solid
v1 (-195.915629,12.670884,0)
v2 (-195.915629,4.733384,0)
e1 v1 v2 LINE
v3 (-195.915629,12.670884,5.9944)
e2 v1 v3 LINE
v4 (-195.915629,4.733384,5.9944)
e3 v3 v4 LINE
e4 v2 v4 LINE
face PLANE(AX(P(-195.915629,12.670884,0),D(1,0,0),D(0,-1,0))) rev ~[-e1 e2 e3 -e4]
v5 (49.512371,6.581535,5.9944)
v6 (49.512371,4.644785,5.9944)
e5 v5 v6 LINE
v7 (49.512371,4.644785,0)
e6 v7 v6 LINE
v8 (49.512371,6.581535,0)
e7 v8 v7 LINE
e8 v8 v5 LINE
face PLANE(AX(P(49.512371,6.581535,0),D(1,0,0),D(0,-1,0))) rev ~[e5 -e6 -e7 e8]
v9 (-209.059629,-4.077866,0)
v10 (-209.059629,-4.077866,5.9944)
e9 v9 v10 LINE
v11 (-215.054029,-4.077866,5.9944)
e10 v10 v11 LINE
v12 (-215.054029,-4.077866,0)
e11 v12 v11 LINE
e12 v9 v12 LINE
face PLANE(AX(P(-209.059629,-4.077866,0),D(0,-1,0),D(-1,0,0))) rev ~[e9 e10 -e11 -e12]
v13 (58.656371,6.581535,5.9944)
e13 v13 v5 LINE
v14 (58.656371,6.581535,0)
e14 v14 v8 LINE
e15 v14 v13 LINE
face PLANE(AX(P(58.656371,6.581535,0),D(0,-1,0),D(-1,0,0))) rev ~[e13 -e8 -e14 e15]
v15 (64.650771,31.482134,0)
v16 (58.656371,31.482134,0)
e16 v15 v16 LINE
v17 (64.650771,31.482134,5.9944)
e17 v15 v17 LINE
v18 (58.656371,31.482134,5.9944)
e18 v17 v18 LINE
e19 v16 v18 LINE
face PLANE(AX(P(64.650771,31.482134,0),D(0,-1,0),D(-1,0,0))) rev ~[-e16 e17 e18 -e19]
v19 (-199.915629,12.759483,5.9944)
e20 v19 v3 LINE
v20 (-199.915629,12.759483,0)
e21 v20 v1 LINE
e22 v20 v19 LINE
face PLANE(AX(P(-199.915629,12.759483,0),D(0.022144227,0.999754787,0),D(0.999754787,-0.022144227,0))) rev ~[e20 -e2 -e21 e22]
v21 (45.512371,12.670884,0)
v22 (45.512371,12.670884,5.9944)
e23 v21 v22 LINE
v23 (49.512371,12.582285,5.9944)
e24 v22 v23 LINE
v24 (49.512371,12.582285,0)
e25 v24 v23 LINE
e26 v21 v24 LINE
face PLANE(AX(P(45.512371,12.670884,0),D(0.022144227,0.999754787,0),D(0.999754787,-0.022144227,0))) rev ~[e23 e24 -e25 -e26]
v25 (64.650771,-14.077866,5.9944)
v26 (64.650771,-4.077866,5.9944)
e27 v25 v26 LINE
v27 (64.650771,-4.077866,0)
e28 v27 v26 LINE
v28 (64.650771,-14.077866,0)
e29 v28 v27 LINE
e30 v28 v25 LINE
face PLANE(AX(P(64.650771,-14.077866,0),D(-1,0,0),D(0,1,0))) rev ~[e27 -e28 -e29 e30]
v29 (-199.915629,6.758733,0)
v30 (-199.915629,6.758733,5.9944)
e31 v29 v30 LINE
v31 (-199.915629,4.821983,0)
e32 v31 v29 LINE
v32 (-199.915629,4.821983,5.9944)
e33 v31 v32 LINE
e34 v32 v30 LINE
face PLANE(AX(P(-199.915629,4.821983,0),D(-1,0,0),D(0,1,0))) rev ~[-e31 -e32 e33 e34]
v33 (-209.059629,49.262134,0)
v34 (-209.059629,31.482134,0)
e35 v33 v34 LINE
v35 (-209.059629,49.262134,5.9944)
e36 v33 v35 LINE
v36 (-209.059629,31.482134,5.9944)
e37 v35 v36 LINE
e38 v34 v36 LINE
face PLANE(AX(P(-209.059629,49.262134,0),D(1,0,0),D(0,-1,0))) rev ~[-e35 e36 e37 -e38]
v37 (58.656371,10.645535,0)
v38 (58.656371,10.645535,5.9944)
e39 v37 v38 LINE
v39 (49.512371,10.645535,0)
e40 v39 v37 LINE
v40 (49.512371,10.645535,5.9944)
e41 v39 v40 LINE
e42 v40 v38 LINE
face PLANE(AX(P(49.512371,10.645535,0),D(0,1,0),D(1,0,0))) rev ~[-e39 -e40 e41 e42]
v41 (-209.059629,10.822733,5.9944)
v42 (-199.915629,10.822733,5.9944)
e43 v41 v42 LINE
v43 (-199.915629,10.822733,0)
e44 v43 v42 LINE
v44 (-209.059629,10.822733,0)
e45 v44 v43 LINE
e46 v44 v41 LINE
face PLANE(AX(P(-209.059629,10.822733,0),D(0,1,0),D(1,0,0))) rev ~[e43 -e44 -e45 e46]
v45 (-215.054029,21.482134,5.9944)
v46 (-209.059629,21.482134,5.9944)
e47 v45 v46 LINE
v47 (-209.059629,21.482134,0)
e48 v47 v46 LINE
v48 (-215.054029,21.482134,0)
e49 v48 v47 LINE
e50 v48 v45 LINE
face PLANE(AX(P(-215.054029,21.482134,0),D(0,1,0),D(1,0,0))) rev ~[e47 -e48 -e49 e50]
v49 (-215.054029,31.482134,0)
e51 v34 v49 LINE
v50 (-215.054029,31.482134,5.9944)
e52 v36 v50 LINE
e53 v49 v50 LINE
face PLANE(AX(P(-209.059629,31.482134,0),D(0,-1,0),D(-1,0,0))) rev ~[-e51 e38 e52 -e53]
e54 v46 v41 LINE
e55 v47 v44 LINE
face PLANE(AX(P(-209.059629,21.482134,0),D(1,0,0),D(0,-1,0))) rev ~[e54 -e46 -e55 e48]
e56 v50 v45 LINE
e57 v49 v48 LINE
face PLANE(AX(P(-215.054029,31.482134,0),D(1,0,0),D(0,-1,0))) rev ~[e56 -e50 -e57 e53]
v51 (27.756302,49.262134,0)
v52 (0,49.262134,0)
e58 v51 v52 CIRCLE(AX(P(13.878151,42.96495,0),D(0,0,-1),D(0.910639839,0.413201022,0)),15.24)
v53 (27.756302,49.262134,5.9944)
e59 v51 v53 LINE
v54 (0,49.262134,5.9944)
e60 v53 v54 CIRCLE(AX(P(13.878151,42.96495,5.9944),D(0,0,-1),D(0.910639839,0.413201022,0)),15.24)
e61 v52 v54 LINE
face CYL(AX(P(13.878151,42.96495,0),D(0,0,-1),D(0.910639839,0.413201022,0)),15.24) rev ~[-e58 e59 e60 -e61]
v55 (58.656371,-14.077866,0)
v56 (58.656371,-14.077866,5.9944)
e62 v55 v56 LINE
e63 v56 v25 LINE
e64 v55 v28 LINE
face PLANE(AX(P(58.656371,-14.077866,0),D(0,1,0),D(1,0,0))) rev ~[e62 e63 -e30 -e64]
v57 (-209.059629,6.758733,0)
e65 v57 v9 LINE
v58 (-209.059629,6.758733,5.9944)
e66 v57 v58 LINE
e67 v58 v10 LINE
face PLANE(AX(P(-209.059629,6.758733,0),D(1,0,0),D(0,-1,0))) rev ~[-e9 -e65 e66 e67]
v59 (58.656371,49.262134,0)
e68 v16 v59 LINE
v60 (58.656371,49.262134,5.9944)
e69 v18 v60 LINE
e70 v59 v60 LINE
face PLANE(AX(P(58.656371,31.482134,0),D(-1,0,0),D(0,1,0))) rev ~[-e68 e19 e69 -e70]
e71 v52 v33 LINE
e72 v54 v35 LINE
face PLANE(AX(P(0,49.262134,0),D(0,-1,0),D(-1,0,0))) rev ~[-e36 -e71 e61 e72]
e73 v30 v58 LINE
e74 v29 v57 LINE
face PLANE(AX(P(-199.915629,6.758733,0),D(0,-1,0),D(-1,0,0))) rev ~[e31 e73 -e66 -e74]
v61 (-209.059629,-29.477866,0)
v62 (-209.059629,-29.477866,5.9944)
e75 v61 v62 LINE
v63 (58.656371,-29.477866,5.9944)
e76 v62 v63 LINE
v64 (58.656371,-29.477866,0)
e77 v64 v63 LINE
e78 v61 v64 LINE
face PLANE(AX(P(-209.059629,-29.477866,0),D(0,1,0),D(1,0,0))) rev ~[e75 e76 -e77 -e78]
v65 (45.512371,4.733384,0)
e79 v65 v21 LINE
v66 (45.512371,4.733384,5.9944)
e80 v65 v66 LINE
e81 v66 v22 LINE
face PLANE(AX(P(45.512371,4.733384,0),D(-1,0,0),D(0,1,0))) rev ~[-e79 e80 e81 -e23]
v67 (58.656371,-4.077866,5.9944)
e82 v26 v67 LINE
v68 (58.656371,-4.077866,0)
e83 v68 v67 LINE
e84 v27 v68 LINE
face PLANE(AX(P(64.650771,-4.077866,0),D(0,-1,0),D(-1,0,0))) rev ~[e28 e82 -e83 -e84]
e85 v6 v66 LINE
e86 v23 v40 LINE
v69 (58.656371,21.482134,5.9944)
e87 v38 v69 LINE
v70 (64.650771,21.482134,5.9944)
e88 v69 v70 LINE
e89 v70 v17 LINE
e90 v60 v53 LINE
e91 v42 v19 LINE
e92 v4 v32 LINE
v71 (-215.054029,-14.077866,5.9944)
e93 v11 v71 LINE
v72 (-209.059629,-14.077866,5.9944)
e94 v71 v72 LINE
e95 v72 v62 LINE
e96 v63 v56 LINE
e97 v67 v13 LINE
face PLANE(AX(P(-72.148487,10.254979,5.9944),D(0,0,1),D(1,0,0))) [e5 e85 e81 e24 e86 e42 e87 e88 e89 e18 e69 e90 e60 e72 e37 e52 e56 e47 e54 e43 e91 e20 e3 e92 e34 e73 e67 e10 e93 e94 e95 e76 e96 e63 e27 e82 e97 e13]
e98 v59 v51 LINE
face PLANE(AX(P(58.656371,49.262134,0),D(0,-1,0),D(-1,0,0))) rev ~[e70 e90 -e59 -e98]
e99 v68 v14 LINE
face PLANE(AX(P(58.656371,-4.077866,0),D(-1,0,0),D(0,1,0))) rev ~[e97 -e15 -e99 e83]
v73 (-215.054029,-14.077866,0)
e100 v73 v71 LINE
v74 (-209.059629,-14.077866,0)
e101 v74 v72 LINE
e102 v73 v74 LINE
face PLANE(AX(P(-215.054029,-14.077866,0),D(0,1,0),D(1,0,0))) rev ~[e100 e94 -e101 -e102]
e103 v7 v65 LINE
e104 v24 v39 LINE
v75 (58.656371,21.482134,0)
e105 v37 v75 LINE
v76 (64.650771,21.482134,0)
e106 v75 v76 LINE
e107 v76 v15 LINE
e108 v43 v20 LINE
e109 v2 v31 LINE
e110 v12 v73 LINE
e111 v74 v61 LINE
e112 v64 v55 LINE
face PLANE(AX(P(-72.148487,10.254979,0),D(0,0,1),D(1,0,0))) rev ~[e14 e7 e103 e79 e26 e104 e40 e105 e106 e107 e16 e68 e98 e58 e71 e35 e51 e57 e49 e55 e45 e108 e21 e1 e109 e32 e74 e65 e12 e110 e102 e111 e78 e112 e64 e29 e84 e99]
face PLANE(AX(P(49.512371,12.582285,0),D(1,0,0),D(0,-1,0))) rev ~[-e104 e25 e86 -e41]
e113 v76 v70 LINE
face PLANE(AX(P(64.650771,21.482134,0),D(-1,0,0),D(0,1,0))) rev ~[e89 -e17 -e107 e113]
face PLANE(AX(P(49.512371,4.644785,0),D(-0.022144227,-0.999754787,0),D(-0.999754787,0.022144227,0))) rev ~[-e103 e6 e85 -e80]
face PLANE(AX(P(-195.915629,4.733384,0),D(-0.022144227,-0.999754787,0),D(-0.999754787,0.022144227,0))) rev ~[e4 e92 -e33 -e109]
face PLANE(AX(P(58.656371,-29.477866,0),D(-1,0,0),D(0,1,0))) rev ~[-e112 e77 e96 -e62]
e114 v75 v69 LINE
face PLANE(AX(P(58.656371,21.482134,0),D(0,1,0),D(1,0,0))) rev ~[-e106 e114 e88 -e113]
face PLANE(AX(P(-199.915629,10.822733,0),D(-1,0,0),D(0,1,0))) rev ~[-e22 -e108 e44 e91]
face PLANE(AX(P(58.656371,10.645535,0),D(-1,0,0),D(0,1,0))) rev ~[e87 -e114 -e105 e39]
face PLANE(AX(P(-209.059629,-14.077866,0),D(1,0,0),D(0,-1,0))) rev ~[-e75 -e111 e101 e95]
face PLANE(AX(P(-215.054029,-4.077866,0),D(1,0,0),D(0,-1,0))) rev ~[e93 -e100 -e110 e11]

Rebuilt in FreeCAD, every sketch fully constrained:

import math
import FreeCAD as App
import Part
import Sketcher
Q = App.Units.Quantity

doc = App.newDocument("Part")
body = doc.addObject("PartDesign::Body", "Body")

# Sketch on XY plane
sketch1 = doc.addObject("Sketcher::SketchObject", "Sketch")
body.addObject(sketch1)
sketch1.AttachmentSupport = (doc.XY_Plane, [""])
sketch1.MapMode = "FlatFace"
sketch1.addGeometry(Part.LineSegment(App.Vector(-209.059629, -14.077866, 0), App.Vector(-209.059629, -29.477866, 0)), False)
sketch1.addGeometry(Part.LineSegment(App.Vector(-209.059629, -29.477866, 0), App.Vector(58.656371, -29.477866, 0)), False)
sketch1.addGeometry(Part.LineSegment(App.Vector(58.656371, -29.477866, 0), App.Vector(58.656371, -14.077866, 0)), False)
sketch1.addGeometry(Part.LineSegment(App.Vector(58.656371, -14.077866, 0), App.Vector(64.650771, -14.077866, 0)), False)
sketch1.addGeometry(Part.LineSegment(App.Vector(64.650771, -14.077866, 0), App.Vector(64.650771, -4.077866, 0)), False)
sketch1.addGeometry(Part.LineSegment(App.Vector(64.650771, -4.077866, 0), App.Vector(58.656371, -4.077866, 0)), False)
sketch1.addGeometry(Part.LineSegment(App.Vector(58.656371, -4.077866, 0), App.Vector(58.656371, 6.581535, 0)), False)
sketch1.addGeometry(Part.LineSegment(App.Vector(58.656371, 6.581535, 0), App.Vector(49.512371, 6.581535, 0)), False)
sketch1.addGeometry(Part.LineSegment(App.Vector(49.512371, 6.581535, 0), App.Vector(49.512371, 4.644785, 0)), False)
sketch1.addGeometry(Part.LineSegment(App.Vector(49.512371, 4.644785, 0), App.Vector(45.512371, 4.733384, 0)), False)
sketch1.addGeometry(Part.LineSegment(App.Vector(45.512371, 4.733384, 0), App.Vector(45.512371, 12.670884, 0)), False)
sketch1.addGeometry(Part.LineSegment(App.Vector(45.512371, 12.670884, 0), App.Vector(49.512371, 12.582285, 0)), False)
sketch1.addGeometry(Part.LineSegment(App.Vector(49.512371, 12.582285, 0), App.Vector(49.512371, 10.645535, 0)), False)
sketch1.addGeometry(Part.LineSegment(App.Vector(49.512371, 10.645535, 0), App.Vector(58.656371, 10.645535, 0)), False)
sketch1.addGeometry(Part.LineSegment(App.Vector(58.656371, 10.645535, 0), App.Vector(58.656371, 21.482134, 0)), False)
sketch1.addGeometry(Part.LineSegment(App.Vector(58.656371, 21.482134, 0), App.Vector(64.650771, 21.482134, 0)), False)
sketch1.addGeometry(Part.LineSegment(App.Vector(64.650771, 21.482134, 0), App.Vector(64.650771, 31.482134, 0)), False)
sketch1.addGeometry(Part.LineSegment(App.Vector(64.650771, 31.482134, 0), App.Vector(58.656371, 31.482134, 0)), False)
sketch1.addGeometry(Part.LineSegment(App.Vector(58.656371, 31.482134, 0), App.Vector(58.656371, 49.262134, 0)), False)
sketch1.addGeometry(Part.LineSegment(App.Vector(58.656371, 49.262134, 0), App.Vector(27.756302, 49.262134, 0)), False)
sketch1.addGeometry(Part.ArcOfCircle(Part.Circle(App.Vector(13.878151, 42.96495, 0), App.Vector(0, 0, 1), 15.24), math.radians(155.593923), math.radians(384.406077)), False)
sketch1.addGeometry(Part.LineSegment(App.Vector(0, 49.262134, 0), App.Vector(-209.059629, 49.262134, 0)), False)
sketch1.addGeometry(Part.LineSegment(App.Vector(-209.059629, 49.262134, 0), App.Vector(-209.059629, 31.482134, 0)), False)
sketch1.addGeometry(Part.LineSegment(App.Vector(-209.059629, 31.482134, 0), App.Vector(-215.054029, 31.482134, 0)), False)
sketch1.addGeometry(Part.LineSegment(App.Vector(-215.054029, 31.482134, 0), App.Vector(-215.054029, 21.482134, 0)), False)
sketch1.addGeometry(Part.LineSegment(App.Vector(-215.054029, 21.482134, 0), App.Vector(-209.059629, 21.482134, 0)), False)
sketch1.addGeometry(Part.LineSegment(App.Vector(-209.059629, 21.482134, 0), App.Vector(-209.059629, 10.822733, 0)), False)
sketch1.addGeometry(Part.LineSegment(App.Vector(-209.059629, 10.822733, 0), App.Vector(-199.915629, 10.822733, 0)), False)
sketch1.addGeometry(Part.LineSegment(App.Vector(-199.915629, 10.822733, 0), App.Vector(-199.915629, 12.759483, 0)), False)
sketch1.addGeometry(Part.LineSegment(App.Vector(-199.915629, 12.759483, 0), App.Vector(-195.915629, 12.670884, 0)), False)
sketch1.addGeometry(Part.LineSegment(App.Vector(-195.915629, 12.670884, 0), App.Vector(-195.915629, 4.733384, 0)), False)
sketch1.addGeometry(Part.LineSegment(App.Vector(-195.915629, 4.733384, 0), App.Vector(-199.915629, 4.821983, 0)), False)
sketch1.addGeometry(Part.LineSegment(App.Vector(-199.915629, 4.821983, 0), App.Vector(-199.915629, 6.758733, 0)), False)
sketch1.addGeometry(Part.LineSegment(App.Vector(-199.915629, 6.758733, 0), App.Vector(-209.059629, 6.758733, 0)), False)
sketch1.addGeometry(Part.LineSegment(App.Vector(-209.059629, 6.758733, 0), App.Vector(-209.059629, -4.077866, 0)), False)
sketch1.addGeometry(Part.LineSegment(App.Vector(-209.059629, -4.077866, 0), App.Vector(-215.054029, -4.077866, 0)), False)
sketch1.addGeometry(Part.LineSegment(App.Vector(-215.054029, -4.077866, 0), App.Vector(-215.054029, -14.077866, 0)), False)
sketch1.addGeometry(Part.LineSegment(App.Vector(-215.054029, -14.077866, 0), App.Vector(-209.059629, -14.077866, 0)), False)
sketch1.addConstraint(Sketcher.Constraint("Coincident", 0, 2, 1, 1))
sketch1.addConstraint(Sketcher.Constraint("Coincident", 1, 2, 2, 1))
sketch1.addConstraint(Sketcher.Constraint("Coincident", 2, 2, 3, 1))
sketch1.addConstraint(Sketcher.Constraint("Coincident", 3, 2, 4, 1))
sketch1.addConstraint(Sketcher.Constraint("Coincident", 4, 2, 5, 1))
sketch1.addConstraint(Sketcher.Constraint("Coincident", 5, 2, 6, 1))
sketch1.addConstraint(Sketcher.Constraint("Coincident", 6, 2, 7, 1))
sketch1.addConstraint(Sketcher.Constraint("Coincident", 7, 2, 8, 1))
sketch1.addConstraint(Sketcher.Constraint("Coincident", 8, 2, 9, 1))
sketch1.addConstraint(Sketcher.Constraint("Coincident", 9, 2, 10, 1))
sketch1.addConstraint(Sketcher.Constraint("Coincident", 10, 2, 11, 1))
sketch1.addConstraint(Sketcher.Constraint("Coincident", 11, 2, 12, 1))
sketch1.addConstraint(Sketcher.Constraint("Coincident", 12, 2, 13, 1))
sketch1.addConstraint(Sketcher.Constraint("Coincident", 13, 2, 14, 1))
sketch1.addConstraint(Sketcher.Constraint("Coincident", 14, 2, 15, 1))
sketch1.addConstraint(Sketcher.Constraint("Coincident", 15, 2, 16, 1))
sketch1.addConstraint(Sketcher.Constraint("Coincident", 16, 2, 17, 1))
sketch1.addConstraint(Sketcher.Constraint("Coincident", 17, 2, 18, 1))
sketch1.addConstraint(Sketcher.Constraint("Coincident", 18, 2, 19, 1))
sketch1.addConstraint(Sketcher.Constraint("Coincident", 19, 2, 20, 2))
sketch1.addConstraint(Sketcher.Constraint("Coincident", 20, 1, 21, 1))
sketch1.addConstraint(Sketcher.Constraint("Coincident", 21, 2, 22, 1))
sketch1.addConstraint(Sketcher.Constraint("Coincident", 22, 2, 23, 1))
sketch1.addConstraint(Sketcher.Constraint("Coincident", 23, 2, 24, 1))
sketch1.addConstraint(Sketcher.Constraint("Coincident", 24, 2, 25, 1))
sketch1.addConstraint(Sketcher.Constraint("Coincident", 25, 2, 26, 1))
sketch1.addConstraint(Sketcher.Constraint("Coincident", 26, 2, 27, 1))
sketch1.addConstraint(Sketcher.Constraint("Coincident", 27, 2, 28, 1))
sketch1.addConstraint(Sketcher.Constraint("Coincident", 28, 2, 29, 1))
sketch1.addConstraint(Sketcher.Constraint("Coincident", 29, 2, 30, 1))
sketch1.addConstraint(Sketcher.Constraint("Coincident", 30, 2, 31, 1))
sketch1.addConstraint(Sketcher.Constraint("Coincident", 31, 2, 32, 1))
sketch1.addConstraint(Sketcher.Constraint("Coincident", 32, 2, 33, 1))
sketch1.addConstraint(Sketcher.Constraint("Coincident", 33, 2, 34, 1))
sketch1.addConstraint(Sketcher.Constraint("Coincident", 34, 2, 35, 1))
sketch1.addConstraint(Sketcher.Constraint("Coincident", 35, 2, 36, 1))
sketch1.addConstraint(Sketcher.Constraint("Coincident", 36, 2, 37, 1))
sketch1.addConstraint(Sketcher.Constraint("Coincident", 37, 2, 0, 1))
sketch1.addConstraint(Sketcher.Constraint("Vertical", 0))
sketch1.addConstraint(Sketcher.Constraint("Horizontal", 1))
sketch1.addConstraint(Sketcher.Constraint("Vertical", 2))
sketch1.addConstraint(Sketcher.Constraint("Horizontal", 3))
sketch1.addConstraint(Sketcher.Constraint("Vertical", 4))
sketch1.addConstraint(Sketcher.Constraint("Horizontal", 5))
sketch1.addConstraint(Sketcher.Constraint("Vertical", 6))
sketch1.addConstraint(Sketcher.Constraint("Horizontal", 7))
sketch1.addConstraint(Sketcher.Constraint("Vertical", 8))
sketch1.addConstraint(Sketcher.Constraint("Vertical", 10))
sketch1.addConstraint(Sketcher.Constraint("Vertical", 12))
sketch1.addConstraint(Sketcher.Constraint("Horizontal", 13))
sketch1.addConstraint(Sketcher.Constraint("Vertical", 14))
sketch1.addConstraint(Sketcher.Constraint("Horizontal", 15))
sketch1.addConstraint(Sketcher.Constraint("Vertical", 16))
sketch1.addConstraint(Sketcher.Constraint("Horizontal", 17))
sketch1.addConstraint(Sketcher.Constraint("Vertical", 18))
sketch1.addConstraint(Sketcher.Constraint("Horizontal", 19))
sketch1.addConstraint(Sketcher.Constraint("Horizontal", 21))
sketch1.addConstraint(Sketcher.Constraint("Vertical", 22))
sketch1.addConstraint(Sketcher.Constraint("Horizontal", 23))
sketch1.addConstraint(Sketcher.Constraint("Vertical", 24))
sketch1.addConstraint(Sketcher.Constraint("Horizontal", 25))
sketch1.addConstraint(Sketcher.Constraint("Vertical", 26))
sketch1.addConstraint(Sketcher.Constraint("Horizontal", 27))
sketch1.addConstraint(Sketcher.Constraint("Vertical", 28))
sketch1.addConstraint(Sketcher.Constraint("Vertical", 30))
sketch1.addConstraint(Sketcher.Constraint("Vertical", 32))
sketch1.addConstraint(Sketcher.Constraint("Horizontal", 33))
sketch1.addConstraint(Sketcher.Constraint("Vertical", 34))
sketch1.addConstraint(Sketcher.Constraint("Horizontal", 35))
sketch1.addConstraint(Sketcher.Constraint("Vertical", 36))
sketch1.addConstraint(Sketcher.Constraint("Horizontal", 37))
sketch1.addConstraint(Sketcher.Constraint("PointOnObject", 20, 1, -2))
sketch1.addConstraint(Sketcher.Constraint("Parallel", 9, 11))
sketch1.addConstraint(Sketcher.Constraint("Parallel", 11, 29))
sketch1.addConstraint(Sketcher.Constraint("Parallel", 29, 31))
sketch1.addConstraint(Sketcher.Constraint("Horizontal", 19, 2, 20, 1))
sketch1.addConstraint(Sketcher.Constraint("Horizontal", 17, 2, 22, 2))
sketch1.addConstraint(Sketcher.Constraint("Horizontal", 15, 2, 24, 2))
sketch1.addConstraint(Sketcher.Constraint("Horizontal", 10, 2, 29, 2))
sketch1.addConstraint(Sketcher.Constraint("Horizontal", 9, 2, 30, 2))
sketch1.addConstraint(Sketcher.Constraint("Horizontal", 5, 2, 34, 2))
sketch1.addConstraint(Sketcher.Constraint("Horizontal", 3, 2, 36, 2))
sketch1.addConstraint(Sketcher.Constraint("Vertical", 2, 2, 5, 2))
sketch1.addConstraint(Sketcher.Constraint("Vertical", 8, 2, 11, 2))
sketch1.addConstraint(Sketcher.Constraint("Vertical", 6, 2, 13, 2))
sketch1.addConstraint(Sketcher.Constraint("Vertical", 4, 2, 15, 2))
sketch1.addConstraint(Sketcher.Constraint("Vertical", 14, 2, 17, 2))
sketch1.addConstraint(Sketcher.Constraint("Vertical", 0, 2, 21, 2))
sketch1.addConstraint(Sketcher.Constraint("Vertical", 22, 2, 25, 2))
sketch1.addConstraint(Sketcher.Constraint("Vertical", 28, 2, 31, 2))
sketch1.addConstraint(Sketcher.Constraint("Vertical", 26, 2, 33, 2))
sketch1.addConstraint(Sketcher.Constraint("Vertical", 24, 2, 35, 2))
sketch1.addConstraint(Sketcher.Constraint("Equal", 17, 23))
sketch1.addConstraint(Sketcher.Constraint("Equal", 13, 27))
sketch1.addConstraint(Sketcher.Constraint("Equal", 8, 12))
sketch1.addConstraint(Sketcher.Constraint("Equal", 4, 16))
sketch1.addConstraint(Sketcher.Constraint("Equal", 6, 26))
sketch1.addConstraint(Sketcher.Constraint("Equal", 12, 28))
sketch1.addConstraint(Sketcher.Constraint("Equal", 28, 32))
sketch1.addConstraint(Sketcher.Constraint("Equal", 11, 29))
sketch1.addConstraint(Sketcher.Constraint("Radius", 20, Q("0.6 in")))
sketch1.addConstraint(Sketcher.Constraint("DistanceY", 18, 1, 18, 2, Q("0.7 in")))
sketch1.addConstraint(Sketcher.Constraint("DistanceY", 1, 2, 4, 2, Q("1 in")))
sketch1.addConstraint(Sketcher.Constraint("DistanceX", 1, 1, 1, 2, Q("10.54 in")))
sketch1.addConstraint(Sketcher.Constraint("DistanceX", 7, 2, 7, 1, Q("0.36 in")))
sketch1.addConstraint(Sketcher.Constraint("DistanceY", 0, 2, 21, 2, Q("3.1 in")))
sketch1.addConstraint(Sketcher.Constraint("DistanceX", 3, 1, 3, 2, Q("0.236 in")))
sketch1.addConstraint(Sketcher.Constraint("DistanceY", 10, 1, 10, 2, Q("0.3125 in")))
sketch1.addConstraint(Sketcher.Constraint("DistanceY", 7, 2, 12, 2, Q("0.16 in")))
sketch1.addConstraint(Sketcher.Constraint("DistanceY", 0, 2, 0, 1, Q("15.4 mm")))
sketch1.addConstraint(Sketcher.Constraint("DistanceY", 6, 1, 6, 2, Q("10.659401 mm")))
sketch1.addConstraint(Sketcher.Constraint("DistanceX", 19, 2, 19, 1, Q("30.900068 mm")))
sketch1.addConstraint(Sketcher.Constraint("DistanceX", 21, 2, 21, 1, Q("209.059629 mm")))
sketch1.addConstraint(Sketcher.Constraint("DistanceX", 9, 2, 8, 2, Q("4 mm")))
sketch1.addConstraint(Sketcher.Constraint("DistanceY", -1, 1, 20, 3, Q("42.96495 mm")))
pad1 = doc.addObject("PartDesign::Pad", "Pad")
body.addObject(pad1)
pad1.Profile = sketch1
pad1.Length = Q("0.236 in")

doc.recompute()
